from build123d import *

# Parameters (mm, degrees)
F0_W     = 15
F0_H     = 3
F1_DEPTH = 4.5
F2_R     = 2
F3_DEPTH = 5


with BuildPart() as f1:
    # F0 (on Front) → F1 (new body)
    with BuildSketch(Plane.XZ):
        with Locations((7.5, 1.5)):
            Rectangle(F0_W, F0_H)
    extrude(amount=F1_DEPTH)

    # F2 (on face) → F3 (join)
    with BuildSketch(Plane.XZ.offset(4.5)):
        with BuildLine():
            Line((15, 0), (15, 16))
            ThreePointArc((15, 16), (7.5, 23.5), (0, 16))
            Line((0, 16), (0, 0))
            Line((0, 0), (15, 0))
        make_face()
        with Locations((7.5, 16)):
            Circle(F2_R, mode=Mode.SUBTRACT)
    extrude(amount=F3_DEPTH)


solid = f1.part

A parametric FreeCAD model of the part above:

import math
import FreeCAD as App
import Part
import Sketcher
Q = App.Units.Quantity


def add_polygon(sketch, points):
    """Adds a closed chain of lines whose ends are joined by coincident constraints."""
    first, n = sketch.GeometryCount, len(points)
    for a, b in zip(points, points[1:] + points[:1]):
        sketch.addGeometry(Part.LineSegment(App.Vector(*a, 0), App.Vector(*b, 0)), False)
    for i in range(n):
        sketch.addConstraint(Sketcher.Constraint("Coincident", first + i, 2, first + (i + 1) % n, 1))

doc = App.newDocument("Part")
params = doc.addObject("Spreadsheet::Sheet", "Params")
for row, (alias, value) in enumerate([
    ("sketch1_width", "15 mm"),
    ("sketch1_height", "3 mm"),
    ("pad1_length", "4.5 mm"),
    ("sketch2_diameter", "4 mm"),
    ("sketch2_radius", "7.5 mm"),
    ("sketch2_height", "16 mm"),
    ("pad2_length", "5 mm"),
], start=1):
    params.set(f"A{row}", alias)
    params.set(f"B{row}", "=" + value)
    params.setAlias(f"B{row}", alias)

body = doc.addObject("PartDesign::Body", "Body")

sketch1 = body.newObject("Sketcher::SketchObject", "Sketch")
sketch1.AttachmentSupport = (doc.getObject("XZ_Plane"), [""])
sketch1.MapMode = "FlatFace"
add_polygon(sketch1, [(0, 3), (0, 0), (15, 0), (15, 3)])
sketch1.addConstraint([
    Sketcher.Constraint("Vertical", 0),
    Sketcher.Constraint("Horizontal", 1),
    Sketcher.Constraint("Vertical", 2),
    Sketcher.Constraint("Horizontal", 3),
    Sketcher.Constraint("Coincident", 0, 2, -1, 1),
    Sketcher.Constraint("DistanceX", 1, 1, 1, 2, Q("15 mm")),
    Sketcher.Constraint("DistanceY", 0, 2, 0, 1, Q("3 mm")),
])
sketch1.setExpression("Constraints[9]", "Params.sketch1_width")
sketch1.setExpression("Constraints[10]", "Params.sketch1_height")
pad1 = body.newObject("PartDesign::Pad", "Pad")
pad1.Profile = sketch1
pad1.setExpression("Length", "Params.pad1_length")

sketch2 = body.newObject("Sketcher::SketchObject", "Sketch001")
sketch2.AttachmentSupport = (doc.getObject("XZ_Plane"), [""])
sketch2.MapMode = "FlatFace"
sketch2.AttachmentOffset = App.Placement(App.Vector(0, 0, 4.5), App.Rotation())
sketch2.addGeometry([
    Part.LineSegment(App.Vector(15, 0, 0), App.Vector(15, 16, 0)),
    Part.ArcOfCircle(Part.Circle(App.Vector(7.5, 16, 0), App.Vector(0, 0, 1), 7.5), math.radians(0), math.radians(180)),
    Part.LineSegment(App.Vector(0, 16, 0), App.Vector(0, 0, 0)),
    Part.LineSegment(App.Vector(0, 0, 0), App.Vector(15, 0, 0)),
    Part.Circle(App.Vector(7.5, 16, 0), App.Vector(0, 0, 1), 2),
], False)
sketch2.addConstraint([
    Sketcher.Constraint("Tangent", 0, 2, 1, 1),
    Sketcher.Constraint("Tangent", 1, 2, 2, 1),
    Sketcher.Constraint("Coincident", 2, 2, 3, 1),
    Sketcher.Constraint("Coincident", 3, 2, 0, 1),
    Sketcher.Constraint("Vertical", 0),
    Sketcher.Constraint("Vertical", 2),
    Sketcher.Constraint("Horizontal", 3),
    Sketcher.Constraint("Coincident", 2, 2, -1, 1),
    Sketcher.Constraint("Coincident", 4, 3, 1, 3),
    Sketcher.Constraint("Diameter", 4, Q("4 mm")),
    Sketcher.Constraint("Radius", 1, Q("7.5 mm")),
    Sketcher.Constraint("DistanceY", 0, 1, 0, 2, Q("16 mm")),
])
sketch2.setExpression("Constraints[9]", "Params.sketch2_diameter")
sketch2.setExpression("Constraints[10]", "Params.sketch2_radius")
sketch2.setExpression("Constraints[11]", "Params.sketch2_height")
pad2 = body.newObject("PartDesign::Pad", "Pad001")
pad2.Profile = sketch2
pad2.setExpression("Length", "Params.pad2_length")

doc.recompute()
